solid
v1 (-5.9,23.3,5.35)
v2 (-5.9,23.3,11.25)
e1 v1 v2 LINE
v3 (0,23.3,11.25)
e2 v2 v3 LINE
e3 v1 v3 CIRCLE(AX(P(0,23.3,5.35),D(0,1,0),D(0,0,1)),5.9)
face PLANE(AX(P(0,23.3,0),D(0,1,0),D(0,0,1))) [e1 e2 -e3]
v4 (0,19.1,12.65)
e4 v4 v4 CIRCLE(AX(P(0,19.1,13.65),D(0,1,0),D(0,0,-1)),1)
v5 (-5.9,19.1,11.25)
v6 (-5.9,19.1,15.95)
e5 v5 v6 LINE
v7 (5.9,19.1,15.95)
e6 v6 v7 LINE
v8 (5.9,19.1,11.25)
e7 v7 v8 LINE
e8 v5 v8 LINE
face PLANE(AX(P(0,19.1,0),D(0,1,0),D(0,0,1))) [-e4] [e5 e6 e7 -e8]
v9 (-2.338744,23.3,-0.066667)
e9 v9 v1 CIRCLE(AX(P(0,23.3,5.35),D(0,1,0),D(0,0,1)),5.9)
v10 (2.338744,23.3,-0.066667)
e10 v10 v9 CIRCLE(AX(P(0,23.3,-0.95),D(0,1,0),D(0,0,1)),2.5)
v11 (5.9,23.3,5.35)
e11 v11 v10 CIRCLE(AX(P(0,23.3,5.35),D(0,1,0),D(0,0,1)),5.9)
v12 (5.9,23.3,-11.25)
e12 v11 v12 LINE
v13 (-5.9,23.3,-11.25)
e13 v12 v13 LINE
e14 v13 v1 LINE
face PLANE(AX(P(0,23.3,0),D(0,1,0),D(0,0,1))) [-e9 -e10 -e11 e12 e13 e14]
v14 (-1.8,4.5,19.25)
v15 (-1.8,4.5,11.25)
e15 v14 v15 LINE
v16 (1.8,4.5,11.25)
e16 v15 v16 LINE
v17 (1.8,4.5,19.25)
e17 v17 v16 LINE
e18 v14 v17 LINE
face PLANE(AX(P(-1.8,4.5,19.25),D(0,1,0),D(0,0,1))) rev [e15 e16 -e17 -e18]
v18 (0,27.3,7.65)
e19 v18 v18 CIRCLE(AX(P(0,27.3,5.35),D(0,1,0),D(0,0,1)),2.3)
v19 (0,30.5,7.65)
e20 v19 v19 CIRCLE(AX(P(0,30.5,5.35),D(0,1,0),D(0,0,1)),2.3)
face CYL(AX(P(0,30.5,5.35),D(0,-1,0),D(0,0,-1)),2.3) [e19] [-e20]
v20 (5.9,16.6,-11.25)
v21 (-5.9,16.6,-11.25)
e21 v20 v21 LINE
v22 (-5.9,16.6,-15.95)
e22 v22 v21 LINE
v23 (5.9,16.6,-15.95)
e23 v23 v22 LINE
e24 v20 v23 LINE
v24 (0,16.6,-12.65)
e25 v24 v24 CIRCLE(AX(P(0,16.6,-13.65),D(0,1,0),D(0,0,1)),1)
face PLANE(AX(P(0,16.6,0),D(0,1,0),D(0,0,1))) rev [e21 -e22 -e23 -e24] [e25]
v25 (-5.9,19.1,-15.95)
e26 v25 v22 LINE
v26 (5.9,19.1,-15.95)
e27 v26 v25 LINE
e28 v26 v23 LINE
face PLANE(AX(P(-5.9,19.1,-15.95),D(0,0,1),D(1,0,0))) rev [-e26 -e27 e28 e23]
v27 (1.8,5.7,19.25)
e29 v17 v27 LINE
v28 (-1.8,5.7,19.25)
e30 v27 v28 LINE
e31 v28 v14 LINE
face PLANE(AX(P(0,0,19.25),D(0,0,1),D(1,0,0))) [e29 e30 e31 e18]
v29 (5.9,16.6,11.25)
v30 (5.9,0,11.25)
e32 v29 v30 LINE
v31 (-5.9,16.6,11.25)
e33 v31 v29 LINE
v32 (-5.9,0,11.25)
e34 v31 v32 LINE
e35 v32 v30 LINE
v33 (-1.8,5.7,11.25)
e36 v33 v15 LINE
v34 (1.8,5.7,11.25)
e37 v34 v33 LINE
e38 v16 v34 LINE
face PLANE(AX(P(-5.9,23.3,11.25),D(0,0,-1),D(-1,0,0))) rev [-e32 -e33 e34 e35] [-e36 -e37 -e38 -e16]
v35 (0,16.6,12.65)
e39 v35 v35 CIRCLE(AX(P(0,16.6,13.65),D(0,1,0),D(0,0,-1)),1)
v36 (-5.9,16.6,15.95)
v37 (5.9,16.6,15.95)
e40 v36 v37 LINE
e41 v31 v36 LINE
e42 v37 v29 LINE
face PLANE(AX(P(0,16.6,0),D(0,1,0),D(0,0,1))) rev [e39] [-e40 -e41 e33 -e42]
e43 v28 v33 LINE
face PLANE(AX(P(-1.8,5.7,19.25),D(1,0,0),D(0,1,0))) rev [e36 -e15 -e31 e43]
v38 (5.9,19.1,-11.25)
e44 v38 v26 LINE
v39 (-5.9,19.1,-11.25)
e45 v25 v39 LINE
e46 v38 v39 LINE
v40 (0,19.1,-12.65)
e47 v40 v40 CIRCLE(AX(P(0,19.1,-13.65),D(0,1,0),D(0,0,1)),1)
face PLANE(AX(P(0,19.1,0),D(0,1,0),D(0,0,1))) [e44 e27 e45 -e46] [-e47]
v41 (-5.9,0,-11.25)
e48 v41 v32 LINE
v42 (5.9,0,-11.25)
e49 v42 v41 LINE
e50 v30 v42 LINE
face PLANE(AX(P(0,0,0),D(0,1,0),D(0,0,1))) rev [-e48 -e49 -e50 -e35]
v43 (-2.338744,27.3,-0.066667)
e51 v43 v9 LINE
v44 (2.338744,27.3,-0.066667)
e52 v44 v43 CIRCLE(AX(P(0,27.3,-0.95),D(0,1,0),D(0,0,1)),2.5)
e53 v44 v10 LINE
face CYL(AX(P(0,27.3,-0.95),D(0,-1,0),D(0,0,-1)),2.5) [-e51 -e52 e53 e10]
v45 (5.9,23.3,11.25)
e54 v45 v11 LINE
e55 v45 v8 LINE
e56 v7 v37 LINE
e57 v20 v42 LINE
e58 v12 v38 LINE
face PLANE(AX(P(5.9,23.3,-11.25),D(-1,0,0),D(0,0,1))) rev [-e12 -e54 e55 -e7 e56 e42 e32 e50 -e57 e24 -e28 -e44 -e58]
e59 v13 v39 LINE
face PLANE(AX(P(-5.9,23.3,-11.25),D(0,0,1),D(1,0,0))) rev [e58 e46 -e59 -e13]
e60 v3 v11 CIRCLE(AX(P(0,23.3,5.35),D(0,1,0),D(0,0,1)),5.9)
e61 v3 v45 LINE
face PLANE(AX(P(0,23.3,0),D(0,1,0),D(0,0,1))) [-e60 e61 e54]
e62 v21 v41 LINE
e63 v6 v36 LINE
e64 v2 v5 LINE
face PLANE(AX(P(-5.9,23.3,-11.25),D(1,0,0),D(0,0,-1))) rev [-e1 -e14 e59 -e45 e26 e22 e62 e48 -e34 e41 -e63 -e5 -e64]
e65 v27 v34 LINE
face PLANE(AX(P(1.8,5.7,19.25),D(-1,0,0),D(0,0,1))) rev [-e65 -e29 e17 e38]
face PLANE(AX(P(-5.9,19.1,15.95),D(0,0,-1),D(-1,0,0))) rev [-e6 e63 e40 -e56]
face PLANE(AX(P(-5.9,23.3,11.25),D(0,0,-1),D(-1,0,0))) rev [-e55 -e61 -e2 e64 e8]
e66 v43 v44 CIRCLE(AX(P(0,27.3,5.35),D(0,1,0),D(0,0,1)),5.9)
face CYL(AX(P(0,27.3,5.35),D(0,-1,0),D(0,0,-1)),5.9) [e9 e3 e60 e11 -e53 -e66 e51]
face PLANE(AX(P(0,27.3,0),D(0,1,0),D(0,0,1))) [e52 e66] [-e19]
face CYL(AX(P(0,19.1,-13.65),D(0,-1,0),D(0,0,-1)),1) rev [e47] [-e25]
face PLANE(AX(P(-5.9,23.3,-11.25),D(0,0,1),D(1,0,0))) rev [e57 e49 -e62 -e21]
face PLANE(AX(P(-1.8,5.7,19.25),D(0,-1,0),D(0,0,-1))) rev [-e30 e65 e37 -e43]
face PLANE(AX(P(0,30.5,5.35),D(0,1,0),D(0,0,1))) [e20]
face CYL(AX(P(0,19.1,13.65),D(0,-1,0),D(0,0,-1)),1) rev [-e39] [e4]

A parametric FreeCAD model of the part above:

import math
import FreeCAD as App
import Part
import Sketcher


def add_polygon(sketch, points):
    """Adds a closed chain of lines whose ends are joined by coincident constraints."""
    first, n = sketch.GeometryCount, len(points)
    for a, b in zip(points, points[1:] + points[:1]):
        sketch.addGeometry(Part.LineSegment(App.Vector(*a, 0), App.Vector(*b, 0)), False)
    for i in range(n):
        sketch.addConstraint(Sketcher.Constraint("Coincident", first + i, 2, first + (i + 1) % n, 1))

doc = App.newDocument("Part")
body = doc.addObject("PartDesign::Body", "Body")

# Sketch on XZ plane
sketch1 = doc.addObject("Sketcher::SketchObject", "Sketch")
body.addObject(sketch1)
sketch1.AttachmentSupport = (doc.XZ_Plane, [""])
sketch1.MapMode = "FlatFace"
add_polygon(sketch1, [(-5.9, -11.25), (-5.9, 11.25), (5.9, 11.25), (5.9, -11.25)])  # lines 0-3
sketch1.addConstraint(Sketcher.Constraint("Vertical", 0))
sketch1.addConstraint(Sketcher.Constraint("Horizontal", 1))
sketch1.addConstraint(Sketcher.Constraint("Vertical", 2))
sketch1.addConstraint(Sketcher.Constraint("Horizontal", 3))
sketch1.addConstraint(Sketcher.Constraint("Symmetric", 0, 2, 2, 2, -1, 1))
sketch1.addConstraint(Sketcher.Constraint("DistanceX", 1, 1, 1, 2, 11.8))
sketch1.addConstraint(Sketcher.Constraint("DistanceY", 0, 1, 0, 2, 22.5))
pad1 = doc.addObject("PartDesign::Pad", "Pad")
body.addObject(pad1)
pad1.Profile = sketch1
pad1.Length = 23.3
pad1.Reversed = True

# Sketch on XZ plane
sketch2 = doc.addObject("Sketcher::SketchObject", "Sketch001")
body.addObject(sketch2)
sketch2.AttachmentSupport = (doc.XZ_Plane, [""])
sketch2.MapMode = "FlatFace"
sketch2.AttachmentOffset = App.Placement(App.Vector(0, 0, -16.6), App.Rotation())
add_polygon(sketch2, [(-5.9, -15.95), (-5.9, 15.95), (5.9, 15.95), (5.9, -15.95)])  # lines 0-3
sketch2.addGeometry(Part.Circle(App.Vector(0, 13.65, 0), App.Vector(0, 0, 1), 1), False)  # 4
sketch2.addGeometry(Part.Circle(App.Vector(0, -13.65, 0), App.Vector(0, 0, 1), 1), False)  # 5
sketch2.addConstraint(Sketcher.Constraint("Vertical", 0))
sketch2.addConstraint(Sketcher.Constraint("Horizontal", 1))
sketch2.addConstraint(Sketcher.Constraint("Vertical", 2))
sketch2.addConstraint(Sketcher.Constraint("Horizontal", 3))
sketch2.addConstraint(Sketcher.Constraint("Equal", 4, 5))
sketch2.addConstraint(Sketcher.Constraint("Symmetric", 4, 3, 5, 3, -1, 1))
sketch2.addConstraint(Sketcher.Constraint("Symmetric", 0, 2, 2, 2, -1, 1))
sketch2.addConstraint(Sketcher.Constraint("PointOnObject", 4, 3, -2))
sketch2.addConstraint(Sketcher.Constraint("Diameter", 4, 2.0))
sketch2.addConstraint(Sketcher.Constraint("DistanceX", 1, 1, 1, 2, 11.8))
sketch2.addConstraint(Sketcher.Constraint("DistanceY", 0, 1, 0, 2, 31.9))
sketch2.addConstraint(Sketcher.Constraint("DistanceY", 5, 3, 4, 3, 27.3))
pad2 = doc.addObject("PartDesign::Pad", "Pad001")
body.addObject(pad2)
pad2.Profile = sketch2
pad2.Length = 2.5
pad2.Reversed = True

# Sketch on XZ plane
sketch3 = doc.addObject("Sketcher::SketchObject", "Sketch002")
body.addObject(sketch3)
sketch3.AttachmentSupport = (doc.XZ_Plane, [""])
sketch3.MapMode = "FlatFace"
sketch3.AttachmentOffset = App.Placement(App.Vector(0, 0, -23.3), App.Rotation())
sketch3.addGeometry(Part.ArcOfCircle(Part.Circle(App.Vector(0, 5.35, 0), App.Vector(0, 0, 1), 5.9), math.radians(-66.646855), math.radians(246.646855)), False)
sketch3.addGeometry(Part.ArcOfCircle(Part.Circle(App.Vector(0, -0.95, 0), App.Vector(0, 0, 1), 2.5), math.radians(159.308667), math.radians(380.691333)), False)
sketch3.addConstraint(Sketcher.Constraint("Coincident", 0, 1, 1, 2))
sketch3.addConstraint(Sketcher.Constraint("Coincident", 1, 1, 0, 2))
sketch3.addConstraint(Sketcher.Constraint("Symmetric", 0, 1, 1, 1, -2))
sketch3.addConstraint(Sketcher.Constraint("Radius", 0, 5.9))
sketch3.addConstraint(Sketcher.Constraint("Radius", 1, 2.5))
sketch3.addConstraint(Sketcher.Constraint("DistanceY", 1, 3, 0, 3, 6.3))
sketch3.addConstraint(Sketcher.Constraint("DistanceY", -1, 1, 0, 3, 5.35))
pad3 = doc.addObject("PartDesign::Pad", "Pad002")
body.addObject(pad3)
pad3.Profile = sketch3
pad3.Length = 4
pad3.Reversed = True

# Sketch on XZ plane
sketch4 = doc.addObject("Sketcher::SketchObject", "Sketch003")
body.addObject(sketch4)
sketch4.AttachmentSupport = (doc.XZ_Plane, [""])
sketch4.MapMode = "FlatFace"
sketch4.AttachmentOffset = App.Placement(App.Vector(0, 0, -27.3), App.Rotation())
sketch4.addGeometry(Part.Circle(App.Vector(0, 5.35, 0), App.Vector(0, 0, 1), 2.3), False)
sketch4.addConstraint(Sketcher.Constraint("PointOnObject", 0, 3, -2))
sketch4.addConstraint(Sketcher.Constraint("Diameter", 0, 4.6))
sketch4.addConstraint(Sketcher.Constraint("DistanceY", -1, 1, 0, 3, 5.35))
pad4 = doc.addObject("PartDesign::Pad", "Pad003")
body.addObject(pad4)
pad4.Profile = sketch4
pad4.Length = 3.2
pad4.Reversed = True

# Sketch on XY plane
sketch5 = doc.addObject("Sketcher::SketchObject", "Sketch004")
body.addObject(sketch5)
sketch5.AttachmentSupport = (doc.XY_Plane, [""])
sketch5.MapMode = "FlatFace"
sketch5.AttachmentOffset = App.Placement(App.Vector(0, 0, 11.25), App.Rotation())
add_polygon(sketch5, [(-1.8, 5.7), (-1.8, 4.5), (1.8, 4.5), (1.8, 5.7)])  # lines 0-3
sketch5.addConstraint(Sketcher.Constraint("Vertical", 0))
sketch5.addConstraint(Sketcher.Constraint("Horizontal", 1))
sketch5.addConstraint(Sketcher.Constraint("Vertical", 2))
sketch5.addConstraint(Sketcher.Constraint("Horizontal", 3))
sketch5.addConstraint(Sketcher.Constraint("DistanceX", 1, 1, 1, 2, 3.6))
sketch5.addConstraint(Sketcher.Constraint("DistanceY", 0, 2, 0, 1, 1.2))
sketch5.addConstraint(Sketcher.Constraint("DistanceX", 0, 2, -1, 1, 1.8))
sketch5.addConstraint(Sketcher.Constraint("DistanceY", -1, 1, 0, 2, 4.5))
pad5 = doc.addObject("PartDesign::Pad", "Pad004")
body.addObject(pad5)
pad5.Profile = sketch5
pad5.Length = 8

doc.recompute()
